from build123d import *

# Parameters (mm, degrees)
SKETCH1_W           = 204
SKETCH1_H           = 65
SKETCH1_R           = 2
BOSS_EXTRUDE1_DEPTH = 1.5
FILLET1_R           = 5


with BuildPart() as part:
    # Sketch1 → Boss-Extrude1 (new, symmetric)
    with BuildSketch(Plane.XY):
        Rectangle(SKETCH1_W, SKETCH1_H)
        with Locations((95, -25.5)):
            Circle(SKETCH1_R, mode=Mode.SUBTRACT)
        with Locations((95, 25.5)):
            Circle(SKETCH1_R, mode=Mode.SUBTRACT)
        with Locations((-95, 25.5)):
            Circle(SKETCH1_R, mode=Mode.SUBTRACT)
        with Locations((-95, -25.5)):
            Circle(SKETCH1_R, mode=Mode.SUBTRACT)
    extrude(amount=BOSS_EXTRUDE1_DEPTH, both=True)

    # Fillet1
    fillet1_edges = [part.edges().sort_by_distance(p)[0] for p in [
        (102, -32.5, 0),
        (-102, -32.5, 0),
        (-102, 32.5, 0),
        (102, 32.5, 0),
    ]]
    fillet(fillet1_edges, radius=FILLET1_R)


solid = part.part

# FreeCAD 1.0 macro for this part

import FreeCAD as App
import Part
import Sketcher

V = App.Vector
Q = App.Units.Quantity


def edges_at(feature, points):
    """Names of the edges that pass closest to the given points."""
    edges = feature.Shape.Edges
    near = lambda p: min(range(len(edges)), key=lambda i: edges[i].distToShape(Part.Vertex(*p))[0])
    return sorted({f"Edge{near(p) + 1}" for p in points})


def add_polygon(sketch, points):
    """Adds a closed chain of lines whose ends are joined by coincident constraints."""
    first, n = sketch.GeometryCount, len(points)
    for a, b in zip(points, points[1:] + points[:1]):
        sketch.addGeometry(Part.LineSegment(App.Vector(*a, 0), App.Vector(*b, 0)), False)
    for i in range(n):
        sketch.addConstraint(Sketcher.Constraint("Coincident", first + i, 2, first + (i + 1) % n, 1))

doc = App.newDocument("Part")
body = doc.addObject("PartDesign::Body", "Body")

# Sketch on XY plane
sketch1 = body.newObject("Sketcher::SketchObject", "Sketch")
sketch1.AttachmentSupport = (doc.getObject("XY_Plane"), [""])
sketch1.MapMode = "FlatFace"
add_polygon(sketch1, [(-102, 32.5), (-102, -32.5), (102, -32.5), (102, 32.5)])  # lines 0-3
sketch1.addGeometry(Part.Circle(V(-95, -25.5, 0), V(0, 0, 1), 2), False)  # 4
sketch1.addGeometry(Part.Circle(V(95, -25.5, 0), V(0, 0, 1), 2), False)  # 5
sketch1.addGeometry(Part.Circle(V(-95, 25.5, 0), V(0, 0, 1), 2), False)  # 6
sketch1.addGeometry(Part.Circle(V(95, 25.5, 0), V(0, 0, 1), 2), False)  # 7
sketch1.addConstraint(Sketcher.Constraint("Vertical", 0))
sketch1.addConstraint(Sketcher.Constraint("Horizontal", 1))
sketch1.addConstraint(Sketcher.Constraint("Vertical", 2))
sketch1.addConstraint(Sketcher.Constraint("Horizontal", 3))
sketch1.addConstraint(Sketcher.Constraint("Equal", 4, 5))
sketch1.addConstraint(Sketcher.Constraint("Equal", 5, 6))
sketch1.addConstraint(Sketcher.Constraint("Equal", 6, 7))
sketch1.addConstraint(Sketcher.Constraint("Symmetric", 5, 3, 6, 3, -1, 1))
sketch1.addConstraint(Sketcher.Constraint("Symmetric", 4, 3, 7, 3, -1, 1))
sketch1.addConstraint(Sketcher.Constraint("Symmetric", 0, 2, 2, 2, -1, 1))
sketch1.addConstraint(Sketcher.Constraint("Symmetric", 4, 3, 5, 3, -2))
sketch1.addConstraint(Sketcher.Constraint("Diameter", 4, Q("4 mm")))
sketch1.addConstraint(Sketcher.Constraint("DistanceX", 1, 1, 1, 2, Q("204 mm")))
sketch1.addConstraint(Sketcher.Constraint("DistanceY", 0, 2, 0, 1, Q("65 mm")))
sketch1.addConstraint(Sketcher.Constraint("DistanceX", 4, 3, -1, 1, Q("95 mm")))
sketch1.addConstraint(Sketcher.Constraint("DistanceY", 4, 3, 6, 3, Q("51 mm")))
pad1 = body.newObject("PartDesign::Pad", "Pad")
pad1.Profile = sketch1
pad1.Length = 3
pad1.Midplane = True
doc.recompute()

fillet = body.newObject("PartDesign::Fillet", "Fillet")
fillet.Base = (pad1, edges_at(pad1, [
    (102, -32.5, 0),
    (-102, -32.5, 0),
    (-102, 32.5, 0),
    (102, 32.5, 0),
]))
fillet.Radius = 5

doc.recompute()
